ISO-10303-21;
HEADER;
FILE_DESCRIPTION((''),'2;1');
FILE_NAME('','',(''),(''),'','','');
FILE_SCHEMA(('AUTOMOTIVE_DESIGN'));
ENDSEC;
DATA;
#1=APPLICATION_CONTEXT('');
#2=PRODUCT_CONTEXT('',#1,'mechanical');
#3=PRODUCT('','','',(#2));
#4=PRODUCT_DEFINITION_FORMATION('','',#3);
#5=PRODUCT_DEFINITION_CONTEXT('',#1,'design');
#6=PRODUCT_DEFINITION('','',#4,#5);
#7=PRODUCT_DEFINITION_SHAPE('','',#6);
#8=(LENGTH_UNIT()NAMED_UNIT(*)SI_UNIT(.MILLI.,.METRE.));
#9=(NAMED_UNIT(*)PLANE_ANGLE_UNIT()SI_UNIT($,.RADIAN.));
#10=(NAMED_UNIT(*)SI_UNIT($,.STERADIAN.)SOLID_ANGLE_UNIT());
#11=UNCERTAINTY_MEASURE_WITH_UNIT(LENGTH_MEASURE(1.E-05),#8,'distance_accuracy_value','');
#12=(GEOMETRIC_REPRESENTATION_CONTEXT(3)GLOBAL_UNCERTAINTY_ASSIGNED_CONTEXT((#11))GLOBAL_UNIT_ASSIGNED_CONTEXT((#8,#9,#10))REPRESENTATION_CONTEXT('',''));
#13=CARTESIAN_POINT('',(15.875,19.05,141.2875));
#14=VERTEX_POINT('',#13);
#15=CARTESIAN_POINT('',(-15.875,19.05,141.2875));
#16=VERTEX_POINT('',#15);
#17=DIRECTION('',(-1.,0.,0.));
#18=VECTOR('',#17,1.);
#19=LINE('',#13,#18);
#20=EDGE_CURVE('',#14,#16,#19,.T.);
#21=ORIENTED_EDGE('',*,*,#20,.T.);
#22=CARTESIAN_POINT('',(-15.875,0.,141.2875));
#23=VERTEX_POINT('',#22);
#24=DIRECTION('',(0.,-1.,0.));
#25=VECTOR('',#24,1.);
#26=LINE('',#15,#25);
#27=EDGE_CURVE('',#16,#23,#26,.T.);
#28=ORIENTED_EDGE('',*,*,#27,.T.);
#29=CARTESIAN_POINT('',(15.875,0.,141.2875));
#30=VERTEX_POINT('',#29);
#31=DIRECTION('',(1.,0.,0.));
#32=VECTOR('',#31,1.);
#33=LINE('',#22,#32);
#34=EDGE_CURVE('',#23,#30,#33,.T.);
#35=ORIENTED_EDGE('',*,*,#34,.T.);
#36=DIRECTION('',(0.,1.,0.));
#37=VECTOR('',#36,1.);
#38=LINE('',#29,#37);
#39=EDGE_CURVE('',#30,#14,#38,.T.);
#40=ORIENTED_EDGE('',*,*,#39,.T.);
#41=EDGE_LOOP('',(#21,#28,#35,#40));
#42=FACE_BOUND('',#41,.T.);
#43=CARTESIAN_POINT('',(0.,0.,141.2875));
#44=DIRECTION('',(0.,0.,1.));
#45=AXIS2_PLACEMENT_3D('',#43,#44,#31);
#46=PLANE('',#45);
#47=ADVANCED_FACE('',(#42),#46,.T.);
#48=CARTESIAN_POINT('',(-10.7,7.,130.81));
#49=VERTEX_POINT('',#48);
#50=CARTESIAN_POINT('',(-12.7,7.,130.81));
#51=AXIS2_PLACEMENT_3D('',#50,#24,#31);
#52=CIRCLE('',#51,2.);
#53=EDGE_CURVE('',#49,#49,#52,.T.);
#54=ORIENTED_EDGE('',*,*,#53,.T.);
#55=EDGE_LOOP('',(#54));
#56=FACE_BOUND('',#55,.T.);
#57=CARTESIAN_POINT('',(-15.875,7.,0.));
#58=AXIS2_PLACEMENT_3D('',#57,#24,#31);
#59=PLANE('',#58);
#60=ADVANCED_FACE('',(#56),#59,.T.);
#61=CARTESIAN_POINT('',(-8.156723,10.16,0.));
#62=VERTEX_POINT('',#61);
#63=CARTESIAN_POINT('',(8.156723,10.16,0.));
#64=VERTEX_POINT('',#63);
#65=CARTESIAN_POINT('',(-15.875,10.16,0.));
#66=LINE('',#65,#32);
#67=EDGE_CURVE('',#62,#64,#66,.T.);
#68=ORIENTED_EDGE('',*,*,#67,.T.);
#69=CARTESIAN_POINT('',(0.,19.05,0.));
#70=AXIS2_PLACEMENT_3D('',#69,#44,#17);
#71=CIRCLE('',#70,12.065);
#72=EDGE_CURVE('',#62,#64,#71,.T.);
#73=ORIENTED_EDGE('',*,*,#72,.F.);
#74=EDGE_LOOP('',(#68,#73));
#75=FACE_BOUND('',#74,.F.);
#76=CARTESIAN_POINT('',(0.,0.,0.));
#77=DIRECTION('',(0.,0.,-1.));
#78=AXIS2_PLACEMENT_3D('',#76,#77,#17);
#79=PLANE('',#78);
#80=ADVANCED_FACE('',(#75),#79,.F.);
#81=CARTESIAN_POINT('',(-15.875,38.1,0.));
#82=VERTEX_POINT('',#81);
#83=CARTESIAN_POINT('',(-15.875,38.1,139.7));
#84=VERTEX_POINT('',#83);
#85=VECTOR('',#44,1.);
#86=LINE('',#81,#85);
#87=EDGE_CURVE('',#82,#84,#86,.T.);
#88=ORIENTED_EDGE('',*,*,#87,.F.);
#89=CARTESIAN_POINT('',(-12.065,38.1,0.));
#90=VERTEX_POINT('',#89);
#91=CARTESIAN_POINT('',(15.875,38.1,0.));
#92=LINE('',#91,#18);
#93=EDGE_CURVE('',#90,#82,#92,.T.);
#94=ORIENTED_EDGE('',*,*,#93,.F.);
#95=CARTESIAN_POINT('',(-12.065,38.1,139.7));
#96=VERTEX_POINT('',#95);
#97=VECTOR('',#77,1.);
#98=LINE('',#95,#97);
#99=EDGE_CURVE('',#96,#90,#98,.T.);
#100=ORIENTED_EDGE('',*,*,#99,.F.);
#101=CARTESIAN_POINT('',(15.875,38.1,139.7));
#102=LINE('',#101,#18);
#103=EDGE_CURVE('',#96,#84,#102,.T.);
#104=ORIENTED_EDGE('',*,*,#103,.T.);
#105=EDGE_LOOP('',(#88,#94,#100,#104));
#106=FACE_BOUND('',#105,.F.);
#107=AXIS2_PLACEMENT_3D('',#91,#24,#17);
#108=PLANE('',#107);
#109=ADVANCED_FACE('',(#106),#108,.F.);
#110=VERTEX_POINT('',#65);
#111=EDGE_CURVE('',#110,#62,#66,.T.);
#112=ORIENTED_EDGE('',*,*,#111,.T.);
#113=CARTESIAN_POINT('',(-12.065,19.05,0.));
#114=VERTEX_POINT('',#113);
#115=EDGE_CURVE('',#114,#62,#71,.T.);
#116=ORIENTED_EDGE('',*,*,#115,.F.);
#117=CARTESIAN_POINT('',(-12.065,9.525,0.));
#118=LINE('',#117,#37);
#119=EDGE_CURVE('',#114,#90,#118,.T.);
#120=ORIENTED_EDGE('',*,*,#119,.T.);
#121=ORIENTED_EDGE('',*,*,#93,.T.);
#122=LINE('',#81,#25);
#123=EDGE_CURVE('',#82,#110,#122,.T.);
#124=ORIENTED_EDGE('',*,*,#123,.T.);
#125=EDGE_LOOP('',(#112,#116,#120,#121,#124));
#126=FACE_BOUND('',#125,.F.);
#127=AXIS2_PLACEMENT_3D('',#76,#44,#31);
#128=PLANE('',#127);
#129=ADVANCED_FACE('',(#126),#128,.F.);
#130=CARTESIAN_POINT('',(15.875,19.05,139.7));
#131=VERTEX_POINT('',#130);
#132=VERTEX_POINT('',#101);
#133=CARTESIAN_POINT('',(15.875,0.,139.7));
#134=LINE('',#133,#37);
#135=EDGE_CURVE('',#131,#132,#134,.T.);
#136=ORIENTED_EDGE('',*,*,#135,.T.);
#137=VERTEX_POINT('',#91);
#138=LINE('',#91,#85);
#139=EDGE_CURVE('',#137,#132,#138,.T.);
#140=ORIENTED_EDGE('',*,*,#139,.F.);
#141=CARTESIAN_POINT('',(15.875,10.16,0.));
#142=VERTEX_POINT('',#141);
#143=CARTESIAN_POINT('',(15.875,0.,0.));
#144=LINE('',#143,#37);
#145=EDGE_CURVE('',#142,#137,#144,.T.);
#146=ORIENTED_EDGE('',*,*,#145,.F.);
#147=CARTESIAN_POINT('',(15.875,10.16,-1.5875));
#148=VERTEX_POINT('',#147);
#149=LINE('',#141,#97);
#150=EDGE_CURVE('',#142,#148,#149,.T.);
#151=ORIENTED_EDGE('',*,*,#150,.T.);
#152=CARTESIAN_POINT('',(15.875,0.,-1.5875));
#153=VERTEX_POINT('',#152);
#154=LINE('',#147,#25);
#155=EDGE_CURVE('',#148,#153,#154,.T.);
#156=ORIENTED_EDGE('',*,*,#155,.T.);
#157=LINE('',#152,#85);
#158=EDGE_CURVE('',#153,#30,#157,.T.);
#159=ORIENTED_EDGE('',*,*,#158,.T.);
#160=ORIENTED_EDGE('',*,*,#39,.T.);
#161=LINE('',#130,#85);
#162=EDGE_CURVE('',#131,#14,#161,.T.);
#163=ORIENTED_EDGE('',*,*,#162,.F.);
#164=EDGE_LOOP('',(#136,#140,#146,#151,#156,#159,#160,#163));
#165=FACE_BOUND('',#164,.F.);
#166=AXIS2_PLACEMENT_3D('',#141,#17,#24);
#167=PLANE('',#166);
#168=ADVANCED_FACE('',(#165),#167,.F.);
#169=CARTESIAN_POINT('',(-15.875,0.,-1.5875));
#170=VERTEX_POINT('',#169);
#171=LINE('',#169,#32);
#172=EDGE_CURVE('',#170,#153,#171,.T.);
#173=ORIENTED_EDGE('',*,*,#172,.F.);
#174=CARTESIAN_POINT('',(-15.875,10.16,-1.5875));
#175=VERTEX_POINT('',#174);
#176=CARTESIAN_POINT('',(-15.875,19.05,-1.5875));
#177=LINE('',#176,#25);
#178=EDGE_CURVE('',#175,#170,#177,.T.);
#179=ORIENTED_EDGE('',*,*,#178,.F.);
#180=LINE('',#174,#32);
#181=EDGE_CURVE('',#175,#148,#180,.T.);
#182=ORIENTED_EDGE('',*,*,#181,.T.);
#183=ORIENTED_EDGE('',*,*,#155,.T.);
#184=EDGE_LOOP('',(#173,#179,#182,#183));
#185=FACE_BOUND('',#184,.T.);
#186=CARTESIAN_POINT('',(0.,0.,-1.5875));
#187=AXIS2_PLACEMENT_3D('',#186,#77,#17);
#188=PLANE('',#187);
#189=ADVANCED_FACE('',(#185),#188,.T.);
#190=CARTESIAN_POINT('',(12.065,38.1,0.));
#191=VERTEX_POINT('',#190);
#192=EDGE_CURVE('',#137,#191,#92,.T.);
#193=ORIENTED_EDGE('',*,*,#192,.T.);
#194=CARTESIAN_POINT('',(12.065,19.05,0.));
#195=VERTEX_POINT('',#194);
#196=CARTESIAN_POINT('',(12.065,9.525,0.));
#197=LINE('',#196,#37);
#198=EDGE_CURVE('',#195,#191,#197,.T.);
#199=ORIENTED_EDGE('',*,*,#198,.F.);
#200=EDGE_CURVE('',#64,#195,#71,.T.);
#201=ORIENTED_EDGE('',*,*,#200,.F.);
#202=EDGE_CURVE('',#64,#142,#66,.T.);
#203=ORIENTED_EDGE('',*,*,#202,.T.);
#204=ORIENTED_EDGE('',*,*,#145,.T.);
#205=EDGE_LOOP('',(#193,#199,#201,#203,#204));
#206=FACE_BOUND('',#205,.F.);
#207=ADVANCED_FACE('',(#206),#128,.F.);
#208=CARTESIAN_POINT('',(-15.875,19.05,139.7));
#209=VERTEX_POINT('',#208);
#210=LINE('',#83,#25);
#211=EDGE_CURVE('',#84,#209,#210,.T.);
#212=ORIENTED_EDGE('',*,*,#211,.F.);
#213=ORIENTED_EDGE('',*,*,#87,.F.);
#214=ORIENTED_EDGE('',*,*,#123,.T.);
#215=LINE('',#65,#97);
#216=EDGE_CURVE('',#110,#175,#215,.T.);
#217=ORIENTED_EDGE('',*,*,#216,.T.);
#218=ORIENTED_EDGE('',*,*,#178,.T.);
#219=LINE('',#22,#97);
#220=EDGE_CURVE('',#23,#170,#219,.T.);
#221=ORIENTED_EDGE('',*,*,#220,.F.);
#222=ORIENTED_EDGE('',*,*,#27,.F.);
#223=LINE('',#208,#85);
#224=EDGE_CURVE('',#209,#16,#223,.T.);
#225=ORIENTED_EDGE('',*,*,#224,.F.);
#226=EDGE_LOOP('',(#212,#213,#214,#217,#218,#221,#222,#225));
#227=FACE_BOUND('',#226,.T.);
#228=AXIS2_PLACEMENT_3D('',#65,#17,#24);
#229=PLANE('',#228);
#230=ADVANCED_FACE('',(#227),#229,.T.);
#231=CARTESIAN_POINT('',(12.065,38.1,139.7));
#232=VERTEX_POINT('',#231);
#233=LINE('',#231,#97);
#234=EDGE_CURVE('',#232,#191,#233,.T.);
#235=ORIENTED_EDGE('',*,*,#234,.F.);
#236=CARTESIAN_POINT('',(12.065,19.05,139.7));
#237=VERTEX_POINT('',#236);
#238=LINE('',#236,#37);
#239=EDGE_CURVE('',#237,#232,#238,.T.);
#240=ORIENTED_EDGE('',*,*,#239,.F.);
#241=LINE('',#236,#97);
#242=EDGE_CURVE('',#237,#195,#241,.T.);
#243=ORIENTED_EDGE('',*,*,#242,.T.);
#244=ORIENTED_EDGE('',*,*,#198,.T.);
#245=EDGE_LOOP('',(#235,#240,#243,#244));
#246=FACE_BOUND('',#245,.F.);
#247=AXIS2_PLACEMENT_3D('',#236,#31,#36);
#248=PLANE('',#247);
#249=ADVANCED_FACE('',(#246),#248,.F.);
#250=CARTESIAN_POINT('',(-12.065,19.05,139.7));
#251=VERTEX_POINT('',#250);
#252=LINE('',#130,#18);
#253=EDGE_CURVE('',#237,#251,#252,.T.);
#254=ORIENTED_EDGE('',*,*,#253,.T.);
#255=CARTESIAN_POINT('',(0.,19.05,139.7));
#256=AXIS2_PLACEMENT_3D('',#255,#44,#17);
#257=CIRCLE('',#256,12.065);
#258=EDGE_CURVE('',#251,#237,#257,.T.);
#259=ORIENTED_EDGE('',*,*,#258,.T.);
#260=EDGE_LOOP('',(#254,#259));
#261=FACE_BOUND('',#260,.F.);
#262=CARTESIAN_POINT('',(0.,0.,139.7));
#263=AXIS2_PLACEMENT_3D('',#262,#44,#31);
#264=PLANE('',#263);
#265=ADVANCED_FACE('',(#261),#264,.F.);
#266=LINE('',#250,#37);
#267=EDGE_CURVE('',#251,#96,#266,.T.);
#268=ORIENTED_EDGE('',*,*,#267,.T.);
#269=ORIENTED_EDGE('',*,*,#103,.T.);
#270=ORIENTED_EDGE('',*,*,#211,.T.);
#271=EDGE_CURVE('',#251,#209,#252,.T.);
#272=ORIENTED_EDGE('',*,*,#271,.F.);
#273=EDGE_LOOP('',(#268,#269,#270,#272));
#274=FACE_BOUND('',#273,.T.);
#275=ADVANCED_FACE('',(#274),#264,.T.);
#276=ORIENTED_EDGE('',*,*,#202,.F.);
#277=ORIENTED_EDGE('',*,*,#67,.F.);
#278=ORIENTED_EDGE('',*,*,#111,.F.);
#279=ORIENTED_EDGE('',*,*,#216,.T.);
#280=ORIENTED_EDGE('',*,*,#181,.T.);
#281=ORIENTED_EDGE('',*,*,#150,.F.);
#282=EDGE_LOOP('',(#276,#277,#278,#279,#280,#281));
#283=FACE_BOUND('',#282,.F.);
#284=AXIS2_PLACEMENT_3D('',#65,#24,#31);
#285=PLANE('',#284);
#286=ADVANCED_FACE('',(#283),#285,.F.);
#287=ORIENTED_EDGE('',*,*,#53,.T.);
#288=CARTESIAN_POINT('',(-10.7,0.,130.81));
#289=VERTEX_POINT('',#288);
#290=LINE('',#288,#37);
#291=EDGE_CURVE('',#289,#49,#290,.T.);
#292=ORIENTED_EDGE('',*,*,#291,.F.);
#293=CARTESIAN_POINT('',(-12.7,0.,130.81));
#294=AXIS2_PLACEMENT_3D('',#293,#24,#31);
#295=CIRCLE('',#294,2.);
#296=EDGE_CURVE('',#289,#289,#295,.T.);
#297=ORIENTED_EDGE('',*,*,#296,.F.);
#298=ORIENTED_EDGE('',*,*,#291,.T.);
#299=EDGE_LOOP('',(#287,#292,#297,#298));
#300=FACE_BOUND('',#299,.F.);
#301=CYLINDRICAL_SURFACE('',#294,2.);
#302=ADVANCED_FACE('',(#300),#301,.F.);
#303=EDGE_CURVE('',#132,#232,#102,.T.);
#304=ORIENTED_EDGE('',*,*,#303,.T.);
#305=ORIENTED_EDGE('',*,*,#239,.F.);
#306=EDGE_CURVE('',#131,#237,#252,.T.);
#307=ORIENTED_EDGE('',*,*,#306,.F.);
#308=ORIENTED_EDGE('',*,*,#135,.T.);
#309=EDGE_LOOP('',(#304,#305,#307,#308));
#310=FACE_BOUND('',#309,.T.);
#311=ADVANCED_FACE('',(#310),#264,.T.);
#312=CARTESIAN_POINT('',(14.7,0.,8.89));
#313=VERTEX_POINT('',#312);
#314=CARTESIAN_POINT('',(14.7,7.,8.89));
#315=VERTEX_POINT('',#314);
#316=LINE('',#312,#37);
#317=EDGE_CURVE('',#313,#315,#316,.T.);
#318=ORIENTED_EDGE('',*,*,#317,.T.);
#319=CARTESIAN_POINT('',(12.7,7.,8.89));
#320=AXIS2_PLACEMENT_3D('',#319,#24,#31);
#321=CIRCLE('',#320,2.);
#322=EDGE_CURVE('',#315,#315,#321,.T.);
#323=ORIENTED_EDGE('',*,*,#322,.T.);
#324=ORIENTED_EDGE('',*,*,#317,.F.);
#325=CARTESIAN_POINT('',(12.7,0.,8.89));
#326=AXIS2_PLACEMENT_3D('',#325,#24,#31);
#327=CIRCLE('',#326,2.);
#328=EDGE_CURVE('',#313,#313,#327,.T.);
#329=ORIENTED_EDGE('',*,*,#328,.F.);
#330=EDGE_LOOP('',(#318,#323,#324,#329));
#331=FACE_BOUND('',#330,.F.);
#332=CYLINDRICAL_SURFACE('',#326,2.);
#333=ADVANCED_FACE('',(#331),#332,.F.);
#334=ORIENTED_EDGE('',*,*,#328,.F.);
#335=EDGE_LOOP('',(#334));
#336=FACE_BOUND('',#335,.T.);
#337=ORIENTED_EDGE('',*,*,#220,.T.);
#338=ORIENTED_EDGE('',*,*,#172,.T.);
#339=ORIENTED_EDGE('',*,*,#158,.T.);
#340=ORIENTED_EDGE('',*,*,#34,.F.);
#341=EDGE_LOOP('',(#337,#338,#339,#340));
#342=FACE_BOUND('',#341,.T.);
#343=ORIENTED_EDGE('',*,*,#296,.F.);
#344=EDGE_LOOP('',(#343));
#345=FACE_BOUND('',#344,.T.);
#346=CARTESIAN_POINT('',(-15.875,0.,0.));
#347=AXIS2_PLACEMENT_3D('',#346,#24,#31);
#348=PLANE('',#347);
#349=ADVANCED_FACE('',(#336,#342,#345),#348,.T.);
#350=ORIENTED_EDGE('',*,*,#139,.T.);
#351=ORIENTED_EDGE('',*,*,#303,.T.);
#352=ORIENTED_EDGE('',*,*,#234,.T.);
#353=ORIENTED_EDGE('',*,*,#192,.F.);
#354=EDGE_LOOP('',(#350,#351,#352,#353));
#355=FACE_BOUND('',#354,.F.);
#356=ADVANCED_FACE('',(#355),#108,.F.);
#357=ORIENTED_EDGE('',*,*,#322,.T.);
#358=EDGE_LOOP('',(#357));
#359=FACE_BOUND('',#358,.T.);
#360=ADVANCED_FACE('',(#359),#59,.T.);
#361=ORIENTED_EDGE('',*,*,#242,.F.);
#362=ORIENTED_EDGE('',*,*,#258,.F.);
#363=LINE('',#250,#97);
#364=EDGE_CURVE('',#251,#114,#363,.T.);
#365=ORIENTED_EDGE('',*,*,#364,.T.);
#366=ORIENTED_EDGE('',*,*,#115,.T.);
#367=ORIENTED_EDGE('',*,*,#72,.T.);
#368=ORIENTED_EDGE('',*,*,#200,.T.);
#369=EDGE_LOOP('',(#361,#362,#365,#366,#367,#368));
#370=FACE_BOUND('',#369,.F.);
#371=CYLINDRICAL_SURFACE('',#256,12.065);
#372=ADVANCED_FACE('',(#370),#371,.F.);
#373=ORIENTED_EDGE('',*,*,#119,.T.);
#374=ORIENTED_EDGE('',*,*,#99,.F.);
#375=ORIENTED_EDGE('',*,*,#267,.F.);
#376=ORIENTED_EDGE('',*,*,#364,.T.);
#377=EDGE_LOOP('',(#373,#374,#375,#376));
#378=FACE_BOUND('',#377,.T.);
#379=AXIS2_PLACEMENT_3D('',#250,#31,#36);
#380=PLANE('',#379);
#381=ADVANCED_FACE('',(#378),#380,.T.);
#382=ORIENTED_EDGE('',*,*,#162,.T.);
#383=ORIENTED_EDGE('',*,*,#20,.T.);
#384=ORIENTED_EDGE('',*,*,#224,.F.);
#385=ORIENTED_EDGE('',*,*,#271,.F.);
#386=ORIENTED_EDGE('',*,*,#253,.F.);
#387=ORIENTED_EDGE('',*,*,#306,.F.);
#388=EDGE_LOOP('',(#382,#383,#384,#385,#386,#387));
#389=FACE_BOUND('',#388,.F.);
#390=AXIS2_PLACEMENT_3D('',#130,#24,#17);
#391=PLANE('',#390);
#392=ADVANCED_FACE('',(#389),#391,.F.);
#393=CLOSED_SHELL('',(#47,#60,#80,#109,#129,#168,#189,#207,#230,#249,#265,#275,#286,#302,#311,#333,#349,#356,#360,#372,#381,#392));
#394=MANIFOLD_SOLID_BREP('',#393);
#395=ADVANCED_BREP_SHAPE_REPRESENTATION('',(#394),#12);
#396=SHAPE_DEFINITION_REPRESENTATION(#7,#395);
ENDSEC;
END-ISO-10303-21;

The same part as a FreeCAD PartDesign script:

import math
import FreeCAD as App
import Part
import Sketcher

V = App.Vector
Q = App.Units.Quantity


def add_polygon(sketch, points):
    """Adds a closed chain of lines whose ends are joined by coincident constraints."""
    first, n = sketch.GeometryCount, len(points)
    for a, b in zip(points, points[1:] + points[:1]):
        sketch.addGeometry(Part.LineSegment(App.Vector(*a, 0), App.Vector(*b, 0)), False)
    for i in range(n):
        sketch.addConstraint(Sketcher.Constraint("Coincident", first + i, 2, first + (i + 1) % n, 1))

doc = App.newDocument("Part")
body = doc.addObject("PartDesign::Body", "Body")

# Sketch on XY plane
sketch1 = body.newObject("Sketcher::SketchObject", "Sketch")
sketch1.AttachmentSupport = (doc.getObject("XY_Plane"), [""])
sketch1.MapMode = "FlatFace"
add_polygon(sketch1, [(-16, 38), (-16, 0), (16, 0), (16, 38)])  # lines 0-3
sketch1.addConstraint(Sketcher.Constraint("Vertical", 0))
sketch1.addConstraint(Sketcher.Constraint("Horizontal", 1))
sketch1.addConstraint(Sketcher.Constraint("Vertical", 2))
sketch1.addConstraint(Sketcher.Constraint("Horizontal", 3))
sketch1.addConstraint(Sketcher.Constraint("Symmetric", 0, 2, 1, 2, -1, 1))
sketch1.addConstraint(Sketcher.Constraint("DistanceY", 0, 2, 0, 1, Q("1.5 in")))
sketch1.addConstraint(Sketcher.Constraint("DistanceX", 1, 1, 1, 2, Q("1.25 in")))
pad1 = body.newObject("PartDesign::Pad", "Pad")
pad1.Profile = sketch1
pad1.Length = Q("5.5 in")

# Sketch on XY plane
sketch2 = body.newObject("Sketcher::SketchObject", "Sketch001")
sketch2.AttachmentSupport = (doc.getObject("XY_Plane"), [""])
sketch2.MapMode = "FlatFace"
sketch2.AttachmentOffset = App.Placement(V(0, 0, 5.5 * 25.4), App.Rotation())
sketch2.addGeometry(Part.LineSegment(V(-12, 38, 0), V(-12, 19, 0)), False)
sketch2.addGeometry(Part.ArcOfCircle(Part.Circle(V(0, 19, 0), V(0, 0, 1), 12), math.radians(180), math.radians(360)), False)
sketch2.addGeometry(Part.LineSegment(V(12, 19, 0), V(12, 38, 0)), False)
sketch2.addGeometry(Part.LineSegment(V(12, 38, 0), V(-12, 38, 0)), False)
sketch2.addConstraint(Sketcher.Constraint("Tangent", 0, 2, 1, 1))
sketch2.addConstraint(Sketcher.Constraint("Tangent", 1, 2, 2, 1))
sketch2.addConstraint(Sketcher.Constraint("Coincident", 2, 2, 3, 1))
sketch2.addConstraint(Sketcher.Constraint("Coincident", 3, 2, 0, 1))
sketch2.addConstraint(Sketcher.Constraint("Vertical", 0))
sketch2.addConstraint(Sketcher.Constraint("Vertical", 2))
sketch2.addConstraint(Sketcher.Constraint("Horizontal", 3))
sketch2.addConstraint(Sketcher.Constraint("PointOnObject", 1, 3, -2))
sketch2.addConstraint(Sketcher.Constraint("Radius", 1, Q("0.475 in")))
sketch2.addConstraint(Sketcher.Constraint("DistanceY", 0, 2, 0, 1, Q("0.75 in")))
sketch2.addConstraint(Sketcher.Constraint("DistanceY", -1, 1, 1, 3, Q("0.75 in")))
pocket1 = body.newObject("PartDesign::Pocket", "Pocket")
pocket1.Profile = sketch2
pocket1.Type = "ThroughAll"

# Sketch on XZ plane
sketch3 = body.newObject("Sketcher::SketchObject", "Sketch002")
sketch3.AttachmentSupport = (doc.getObject("XZ_Plane"), [""])
sketch3.MapMode = "FlatFace"
sketch3.addGeometry(Part.Circle(V(12.7, 8.9, 0), V(0, 0, 1), 2), False)
sketch3.addGeometry(Part.Circle(V(-12.7, 130.8, 0), V(0, 0, 1), 2), False)
sketch3.addConstraint(Sketcher.Constraint("Equal", 0, 1))
sketch3.addConstraint(Sketcher.Constraint("DistanceX", -1, 1, 0, 3, Q("0.5 in")))
sketch3.addConstraint(Sketcher.Constraint("DistanceX", 1, 3, -1, 1, Q("0.5 in")))
sketch3.addConstraint(Sketcher.Constraint("Diameter", 0, Q("4 mm")))
sketch3.addConstraint(Sketcher.Constraint("DistanceY", -1, 1, 0, 3, Q("0.35 in")))
sketch3.addConstraint(Sketcher.Constraint("DistanceY", 0, 3, 1, 3, Q("4.8 in")))
pocket2 = body.newObject("PartDesign::Pocket", "Pocket001")
pocket2.Profile = sketch3
pocket2.Length = Q("0.2755906 in")

# Sketch on XY plane
sketch4 = body.newObject("Sketcher::SketchObject", "Sketch003")
sketch4.AttachmentSupport = (doc.getObject("XY_Plane"), [""])
sketch4.MapMode = "FlatFace"
sketch4.AttachmentOffset = App.Placement(V(0, 0, 5.5 * 25.4), App.Rotation())
add_polygon(sketch4, [(-16, 19), (-16, 0), (16, 0), (16, 19)])  # lines 0-3
sketch4.addConstraint(Sketcher.Constraint("Vertical", 0))
sketch4.addConstraint(Sketcher.Constraint("Horizontal", 1))
sketch4.addConstraint(Sketcher.Constraint("Vertical", 2))
sketch4.addConstraint(Sketcher.Constraint("Horizontal", 3))
sketch4.addConstraint(Sketcher.Constraint("Symmetric", 0, 2, 1, 2, -1, 1))
sketch4.addConstraint(Sketcher.Constraint("DistanceY", 0, 2, 0, 1, Q("0.75 in")))
sketch4.addConstraint(Sketcher.Constraint("DistanceX", 1, 1, 1, 2, Q("1.25 in")))
pad2 = body.newObject("PartDesign::Pad", "Pad001")
pad2.Profile = sketch4
pad2.Length = Q("0.0625 in")

# Sketch on XY plane
sketch5 = body.newObject("Sketcher::SketchObject", "Sketch004")
sketch5.AttachmentSupport = (doc.getObject("XY_Plane"), [""])
sketch5.MapMode = "FlatFace"
add_polygon(sketch5, [(16, 0), (-16, 0), (-16, 10), (16, 10)])  # lines 0-3
sketch5.addConstraint(Sketcher.Constraint("Horizontal", 0))
sketch5.addConstraint(Sketcher.Constraint("Vertical", 1))
sketch5.addConstraint(Sketcher.Constraint("Horizontal", 2))
sketch5.addConstraint(Sketcher.Constraint("Vertical", 3))
sketch5.addConstraint(Sketcher.Constraint("Symmetric", 0, 2, 3, 2, -1, 1))
sketch5.addConstraint(Sketcher.Constraint("DistanceY", 1, 1, 1, 2, Q("0.4 in")))
sketch5.addConstraint(Sketcher.Constraint("DistanceX", 0, 2, 0, 1, Q("1.25 in")))
pad3 = body.newObject("PartDesign::Pad", "Pad002")
pad3.Profile = sketch5
pad3.Length = Q("0.0625 in")
pad3.Reversed = True

doc.recompute()
